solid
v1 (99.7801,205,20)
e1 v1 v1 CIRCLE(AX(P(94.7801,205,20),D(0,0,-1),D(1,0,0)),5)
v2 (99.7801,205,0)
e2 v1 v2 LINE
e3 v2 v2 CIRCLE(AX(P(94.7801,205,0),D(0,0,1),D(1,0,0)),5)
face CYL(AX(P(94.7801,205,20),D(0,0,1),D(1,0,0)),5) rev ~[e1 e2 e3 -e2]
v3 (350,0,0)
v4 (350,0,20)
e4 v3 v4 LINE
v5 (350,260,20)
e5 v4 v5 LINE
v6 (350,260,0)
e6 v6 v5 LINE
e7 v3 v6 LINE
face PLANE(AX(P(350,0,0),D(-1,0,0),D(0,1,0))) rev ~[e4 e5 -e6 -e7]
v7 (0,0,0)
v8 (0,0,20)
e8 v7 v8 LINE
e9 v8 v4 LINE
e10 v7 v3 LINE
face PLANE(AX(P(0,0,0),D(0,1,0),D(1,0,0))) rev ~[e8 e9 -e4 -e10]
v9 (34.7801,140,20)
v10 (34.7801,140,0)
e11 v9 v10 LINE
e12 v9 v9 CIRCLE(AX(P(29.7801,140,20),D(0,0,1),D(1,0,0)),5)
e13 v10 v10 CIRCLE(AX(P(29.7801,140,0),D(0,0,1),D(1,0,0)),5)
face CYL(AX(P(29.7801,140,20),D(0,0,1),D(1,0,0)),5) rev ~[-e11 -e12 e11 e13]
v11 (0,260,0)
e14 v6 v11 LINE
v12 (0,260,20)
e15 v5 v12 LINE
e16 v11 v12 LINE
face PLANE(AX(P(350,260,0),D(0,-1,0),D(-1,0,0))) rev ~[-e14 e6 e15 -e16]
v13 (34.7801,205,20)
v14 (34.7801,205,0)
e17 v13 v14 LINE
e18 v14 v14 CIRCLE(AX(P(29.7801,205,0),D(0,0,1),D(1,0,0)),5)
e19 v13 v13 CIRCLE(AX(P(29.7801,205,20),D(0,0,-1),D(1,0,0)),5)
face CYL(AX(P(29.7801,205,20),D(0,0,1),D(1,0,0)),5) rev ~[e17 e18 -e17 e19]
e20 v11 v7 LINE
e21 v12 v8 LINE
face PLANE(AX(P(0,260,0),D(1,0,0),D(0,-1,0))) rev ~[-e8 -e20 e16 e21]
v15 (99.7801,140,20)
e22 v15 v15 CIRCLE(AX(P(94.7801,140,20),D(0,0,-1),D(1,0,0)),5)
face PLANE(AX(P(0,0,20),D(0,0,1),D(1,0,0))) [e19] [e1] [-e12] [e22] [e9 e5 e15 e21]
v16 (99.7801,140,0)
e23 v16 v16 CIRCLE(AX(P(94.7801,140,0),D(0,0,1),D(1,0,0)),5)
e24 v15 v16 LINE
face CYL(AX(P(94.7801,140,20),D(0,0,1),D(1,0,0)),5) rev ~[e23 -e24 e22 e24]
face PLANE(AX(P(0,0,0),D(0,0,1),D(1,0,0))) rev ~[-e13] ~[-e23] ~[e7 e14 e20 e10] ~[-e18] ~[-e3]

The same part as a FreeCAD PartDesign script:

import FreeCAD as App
import Part
import Sketcher
Q = App.Units.Quantity


def add_polygon(sketch, points):
    """Adds a closed chain of lines whose ends are joined by coincident constraints."""
    first, n = sketch.GeometryCount, len(points)
    for a, b in zip(points, points[1:] + points[:1]):
        sketch.addGeometry(Part.LineSegment(App.Vector(*a, 0), App.Vector(*b, 0)), False)
    for i in range(n):
        sketch.addConstraint(Sketcher.Constraint("Coincident", first + i, 2, first + (i + 1) % n, 1))

doc = App.newDocument("Part")
body = doc.addObject("PartDesign::Body", "Body")

# Sketch on XY plane
sketch1 = doc.addObject("Sketcher::SketchObject", "Sketch")
body.addObject(sketch1)
sketch1.AttachmentSupport = (doc.XY_Plane, [""])
sketch1.MapMode = "FlatFace"
add_polygon(sketch1, [(0, 260), (0, 0), (350, 0), (350, 260)])  # lines 0-3
sketch1.addConstraint([
    Sketcher.Constraint("Vertical", 0),
    Sketcher.Constraint("Horizontal", 1),
    Sketcher.Constraint("Vertical", 2),
    Sketcher.Constraint("Horizontal", 3),
    Sketcher.Constraint("Coincident", 0, 2, -1, 1),
    Sketcher.Constraint("DistanceX", 1, 1, 1, 2, Q("350 mm")),
    Sketcher.Constraint("DistanceY", 0, 2, 0, 1, Q("260 mm")),
])
pad1 = doc.addObject("PartDesign::Pad", "Pad")
body.addObject(pad1)
pad1.Profile = sketch1
pad1.Length = 20

# Sketch on XY plane
sketch2 = doc.addObject("Sketcher::SketchObject", "Sketch001")
body.addObject(sketch2)
sketch2.AttachmentSupport = (doc.XY_Plane, [""])
sketch2.MapMode = "FlatFace"
sketch2.AttachmentOffset = App.Placement(App.Vector(0, 0, 20), App.Rotation())
sketch2.addGeometry([
    Part.Circle(App.Vector(29.7801, 205, 0), App.Vector(0, 0, 1), 5),
    Part.Circle(App.Vector(29.7801, 140, 0), App.Vector(0, 0, 1), 5),
    Part.Circle(App.Vector(94.7801, 140, 0), App.Vector(0, 0, 1), 5),
    Part.Circle(App.Vector(94.7801, 205, 0), App.Vector(0, 0, 1), 5),
], False)
sketch2.addConstraint([
    Sketcher.Constraint("Equal", 0, 1),
    Sketcher.Constraint("Equal", 1, 2),
    Sketcher.Constraint("Equal", 2, 3),
    Sketcher.Constraint("Horizontal", 1, 3, 2, 3),
    Sketcher.Constraint("Horizontal", 0, 3, 3, 3),
    Sketcher.Constraint("Vertical", 0, 3, 1, 3),
    Sketcher.Constraint("Vertical", 2, 3, 3, 3),
    Sketcher.Constraint("Diameter", 0, Q("10 mm")),
    Sketcher.Constraint("DistanceY", 1, 3, 0, 3, Q("65 mm")),
    Sketcher.Constraint("DistanceX", 1, 3, 2, 3, Q("65 mm")),
    Sketcher.Constraint("DistanceY", -1, 1, 0, 3, Q("205 mm")),
    Sketcher.Constraint("DistanceX", -1, 1, 0, 3, Q("29.78 mm")),
])
pocket1 = doc.addObject("PartDesign::Pocket", "Pocket")
body.addObject(pocket1)
pocket1.Profile = sketch2
pocket1.Type = "ThroughAll"

doc.recompute()
